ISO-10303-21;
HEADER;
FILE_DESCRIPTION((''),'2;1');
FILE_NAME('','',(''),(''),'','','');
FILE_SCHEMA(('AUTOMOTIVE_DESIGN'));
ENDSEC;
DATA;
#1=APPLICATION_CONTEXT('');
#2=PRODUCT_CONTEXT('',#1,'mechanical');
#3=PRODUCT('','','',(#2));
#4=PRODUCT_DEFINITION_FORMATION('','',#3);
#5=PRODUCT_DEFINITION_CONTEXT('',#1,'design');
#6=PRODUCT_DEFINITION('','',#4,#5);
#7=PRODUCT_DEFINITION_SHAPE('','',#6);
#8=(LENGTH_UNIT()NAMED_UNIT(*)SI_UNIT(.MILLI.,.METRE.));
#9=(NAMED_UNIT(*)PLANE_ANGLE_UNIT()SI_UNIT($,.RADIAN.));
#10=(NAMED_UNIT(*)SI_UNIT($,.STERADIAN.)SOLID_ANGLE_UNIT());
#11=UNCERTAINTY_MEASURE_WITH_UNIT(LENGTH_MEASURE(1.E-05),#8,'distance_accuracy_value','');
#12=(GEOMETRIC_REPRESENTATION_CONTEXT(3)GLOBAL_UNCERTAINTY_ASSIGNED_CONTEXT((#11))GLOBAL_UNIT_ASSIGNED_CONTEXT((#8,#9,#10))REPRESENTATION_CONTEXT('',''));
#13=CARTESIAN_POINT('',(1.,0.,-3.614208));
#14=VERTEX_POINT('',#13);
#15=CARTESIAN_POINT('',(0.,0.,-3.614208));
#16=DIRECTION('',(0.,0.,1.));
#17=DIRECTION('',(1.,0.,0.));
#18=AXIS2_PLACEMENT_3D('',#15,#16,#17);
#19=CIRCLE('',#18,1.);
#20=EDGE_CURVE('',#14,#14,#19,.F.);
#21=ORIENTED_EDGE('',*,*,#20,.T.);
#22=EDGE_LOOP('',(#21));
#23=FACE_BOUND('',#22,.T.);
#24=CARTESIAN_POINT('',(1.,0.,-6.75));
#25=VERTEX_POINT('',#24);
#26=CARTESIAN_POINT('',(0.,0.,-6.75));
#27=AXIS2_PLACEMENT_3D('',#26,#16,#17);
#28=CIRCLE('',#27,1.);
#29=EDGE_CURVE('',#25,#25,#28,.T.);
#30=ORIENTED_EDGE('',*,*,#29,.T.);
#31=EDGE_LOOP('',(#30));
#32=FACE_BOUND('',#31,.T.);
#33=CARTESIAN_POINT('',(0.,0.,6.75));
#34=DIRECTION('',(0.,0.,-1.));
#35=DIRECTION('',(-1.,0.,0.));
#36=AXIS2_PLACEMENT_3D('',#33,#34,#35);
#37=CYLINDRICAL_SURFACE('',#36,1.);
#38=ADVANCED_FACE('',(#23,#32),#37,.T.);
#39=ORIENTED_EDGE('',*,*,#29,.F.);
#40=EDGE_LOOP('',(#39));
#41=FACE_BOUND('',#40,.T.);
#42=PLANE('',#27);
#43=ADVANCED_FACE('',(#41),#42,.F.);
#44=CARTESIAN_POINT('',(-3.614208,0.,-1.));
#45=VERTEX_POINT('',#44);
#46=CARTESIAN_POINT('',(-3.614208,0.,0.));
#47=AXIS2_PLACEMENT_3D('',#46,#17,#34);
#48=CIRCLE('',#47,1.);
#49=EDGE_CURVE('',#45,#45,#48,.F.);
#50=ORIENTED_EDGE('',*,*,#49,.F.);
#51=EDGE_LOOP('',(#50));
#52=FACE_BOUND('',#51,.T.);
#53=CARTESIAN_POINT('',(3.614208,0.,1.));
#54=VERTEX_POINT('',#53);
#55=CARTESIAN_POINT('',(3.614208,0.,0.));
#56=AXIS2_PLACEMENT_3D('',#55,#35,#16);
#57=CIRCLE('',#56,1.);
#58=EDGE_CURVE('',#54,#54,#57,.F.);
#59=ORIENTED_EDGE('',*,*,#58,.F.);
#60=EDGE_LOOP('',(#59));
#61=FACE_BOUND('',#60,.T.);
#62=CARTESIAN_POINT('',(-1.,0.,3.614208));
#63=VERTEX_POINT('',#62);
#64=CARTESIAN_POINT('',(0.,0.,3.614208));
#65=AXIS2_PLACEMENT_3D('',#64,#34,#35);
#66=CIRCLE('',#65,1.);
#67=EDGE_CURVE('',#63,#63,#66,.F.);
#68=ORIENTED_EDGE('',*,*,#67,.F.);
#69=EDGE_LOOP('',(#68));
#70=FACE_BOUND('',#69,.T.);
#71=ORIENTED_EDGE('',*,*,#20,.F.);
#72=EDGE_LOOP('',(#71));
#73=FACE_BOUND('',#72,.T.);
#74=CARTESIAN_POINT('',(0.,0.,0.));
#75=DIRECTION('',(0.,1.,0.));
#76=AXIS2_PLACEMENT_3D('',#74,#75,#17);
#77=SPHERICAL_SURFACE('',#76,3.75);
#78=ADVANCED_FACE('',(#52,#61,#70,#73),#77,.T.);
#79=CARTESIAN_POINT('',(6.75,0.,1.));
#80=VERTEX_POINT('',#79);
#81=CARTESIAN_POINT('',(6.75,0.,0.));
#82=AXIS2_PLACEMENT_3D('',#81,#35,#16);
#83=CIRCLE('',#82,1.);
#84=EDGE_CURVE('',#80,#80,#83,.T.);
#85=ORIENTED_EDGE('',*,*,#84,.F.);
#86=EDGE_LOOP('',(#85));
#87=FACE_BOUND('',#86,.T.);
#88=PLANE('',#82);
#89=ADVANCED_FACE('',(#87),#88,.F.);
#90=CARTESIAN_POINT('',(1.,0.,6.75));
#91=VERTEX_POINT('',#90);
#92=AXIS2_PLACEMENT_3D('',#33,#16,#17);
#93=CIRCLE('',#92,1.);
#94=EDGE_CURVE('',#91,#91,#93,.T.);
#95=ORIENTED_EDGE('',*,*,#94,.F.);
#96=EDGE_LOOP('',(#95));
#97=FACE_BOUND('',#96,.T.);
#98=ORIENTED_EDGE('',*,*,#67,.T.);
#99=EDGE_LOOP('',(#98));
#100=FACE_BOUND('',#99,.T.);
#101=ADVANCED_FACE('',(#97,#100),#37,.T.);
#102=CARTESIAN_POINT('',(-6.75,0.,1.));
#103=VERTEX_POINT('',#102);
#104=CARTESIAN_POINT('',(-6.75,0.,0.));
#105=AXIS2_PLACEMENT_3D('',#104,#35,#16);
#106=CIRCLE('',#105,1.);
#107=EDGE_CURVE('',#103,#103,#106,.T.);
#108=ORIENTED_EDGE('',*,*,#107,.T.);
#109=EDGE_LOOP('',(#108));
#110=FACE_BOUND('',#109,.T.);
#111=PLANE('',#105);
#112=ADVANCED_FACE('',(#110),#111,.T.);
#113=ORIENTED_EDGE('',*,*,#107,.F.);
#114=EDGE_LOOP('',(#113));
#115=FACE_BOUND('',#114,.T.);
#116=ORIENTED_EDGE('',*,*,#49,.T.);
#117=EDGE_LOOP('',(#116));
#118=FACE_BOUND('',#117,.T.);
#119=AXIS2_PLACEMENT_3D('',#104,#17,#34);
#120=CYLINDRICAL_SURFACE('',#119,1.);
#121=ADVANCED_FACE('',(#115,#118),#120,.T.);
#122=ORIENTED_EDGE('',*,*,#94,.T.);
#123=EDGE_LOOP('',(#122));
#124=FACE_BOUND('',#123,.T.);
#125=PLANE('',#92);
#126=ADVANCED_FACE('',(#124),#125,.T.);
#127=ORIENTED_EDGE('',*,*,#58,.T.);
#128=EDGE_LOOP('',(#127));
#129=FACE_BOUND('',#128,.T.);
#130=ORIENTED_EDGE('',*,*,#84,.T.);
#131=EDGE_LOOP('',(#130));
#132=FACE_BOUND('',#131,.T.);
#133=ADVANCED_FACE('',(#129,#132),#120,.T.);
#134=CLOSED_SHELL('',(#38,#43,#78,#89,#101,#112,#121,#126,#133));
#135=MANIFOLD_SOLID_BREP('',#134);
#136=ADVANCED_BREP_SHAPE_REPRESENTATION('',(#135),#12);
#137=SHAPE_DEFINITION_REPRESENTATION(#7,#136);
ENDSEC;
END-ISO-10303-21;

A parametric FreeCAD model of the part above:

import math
import FreeCAD as App
import Part
import Sketcher

V = App.Vector
Q = App.Units.Quantity

doc = App.newDocument("Part")
body = doc.addObject("PartDesign::Body", "Body")

sketch1 = body.newObject("Sketcher::SketchObject", "Sketch")
sketch1.AttachmentSupport = (doc.getObject("XY_Plane"), [""])
sketch1.MapMode = "FlatFace"
sketch1.addGeometry([
    Part.LineSegment(V(0, 3.8, 0), V(0, -3.8, 0)),
    Part.ArcOfCircle(Part.Circle(V(0, 0, 0), V(0, 0, 1), 3.8), math.radians(-90), math.radians(90)),
], False)
sketch1.addConstraint([
    Sketcher.Constraint("Coincident", 0, 1, 1, 2),
    Sketcher.Constraint("Coincident", 1, 1, 0, 2),
    Sketcher.Constraint("Vertical", 0),
    Sketcher.Constraint("Coincident", 1, 3, -1, 1),
    Sketcher.Constraint("PointOnObject", 0, 1, -2),
    Sketcher.Constraint("Radius", 1, Q("3.75 mm")),
])
revolution = body.newObject("PartDesign::Revolution", "Revolution")
revolution.Profile = sketch1
revolution.ReferenceAxis = (sketch1, ["V_Axis"])
revolution.Angle = 360

sketch2 = body.newObject("Sketcher::SketchObject", "Sketch001")
sketch2.AttachmentSupport = (doc.getObject("XY_Plane"), [""])
sketch2.MapMode = "FlatFace"
sketch2.addGeometry(Part.Circle(V(0, 0, 0), V(0, 0, 1), 1), False)
sketch2.addConstraint([
    Sketcher.Constraint("Coincident", 0, 3, -1, 1),
    Sketcher.Constraint("Diameter", 0, Q("2 mm")),
])
pad1 = body.newObject("PartDesign::Pad", "Pad")
pad1.Profile = sketch2
pad1.Length = 13.5
pad1.Midplane = True
doc.recompute()

polarpattern = body.newObject("PartDesign::PolarPattern", "PolarPattern")
polarpattern.Originals = [pad1]
polarpattern.Axis = (doc.getObject("Y_Axis"), [""])
polarpattern.Angle = 90
polarpattern.Occurrences = 2
polarpattern.Reversed = True
body.Tip = polarpattern

doc.recompute()
